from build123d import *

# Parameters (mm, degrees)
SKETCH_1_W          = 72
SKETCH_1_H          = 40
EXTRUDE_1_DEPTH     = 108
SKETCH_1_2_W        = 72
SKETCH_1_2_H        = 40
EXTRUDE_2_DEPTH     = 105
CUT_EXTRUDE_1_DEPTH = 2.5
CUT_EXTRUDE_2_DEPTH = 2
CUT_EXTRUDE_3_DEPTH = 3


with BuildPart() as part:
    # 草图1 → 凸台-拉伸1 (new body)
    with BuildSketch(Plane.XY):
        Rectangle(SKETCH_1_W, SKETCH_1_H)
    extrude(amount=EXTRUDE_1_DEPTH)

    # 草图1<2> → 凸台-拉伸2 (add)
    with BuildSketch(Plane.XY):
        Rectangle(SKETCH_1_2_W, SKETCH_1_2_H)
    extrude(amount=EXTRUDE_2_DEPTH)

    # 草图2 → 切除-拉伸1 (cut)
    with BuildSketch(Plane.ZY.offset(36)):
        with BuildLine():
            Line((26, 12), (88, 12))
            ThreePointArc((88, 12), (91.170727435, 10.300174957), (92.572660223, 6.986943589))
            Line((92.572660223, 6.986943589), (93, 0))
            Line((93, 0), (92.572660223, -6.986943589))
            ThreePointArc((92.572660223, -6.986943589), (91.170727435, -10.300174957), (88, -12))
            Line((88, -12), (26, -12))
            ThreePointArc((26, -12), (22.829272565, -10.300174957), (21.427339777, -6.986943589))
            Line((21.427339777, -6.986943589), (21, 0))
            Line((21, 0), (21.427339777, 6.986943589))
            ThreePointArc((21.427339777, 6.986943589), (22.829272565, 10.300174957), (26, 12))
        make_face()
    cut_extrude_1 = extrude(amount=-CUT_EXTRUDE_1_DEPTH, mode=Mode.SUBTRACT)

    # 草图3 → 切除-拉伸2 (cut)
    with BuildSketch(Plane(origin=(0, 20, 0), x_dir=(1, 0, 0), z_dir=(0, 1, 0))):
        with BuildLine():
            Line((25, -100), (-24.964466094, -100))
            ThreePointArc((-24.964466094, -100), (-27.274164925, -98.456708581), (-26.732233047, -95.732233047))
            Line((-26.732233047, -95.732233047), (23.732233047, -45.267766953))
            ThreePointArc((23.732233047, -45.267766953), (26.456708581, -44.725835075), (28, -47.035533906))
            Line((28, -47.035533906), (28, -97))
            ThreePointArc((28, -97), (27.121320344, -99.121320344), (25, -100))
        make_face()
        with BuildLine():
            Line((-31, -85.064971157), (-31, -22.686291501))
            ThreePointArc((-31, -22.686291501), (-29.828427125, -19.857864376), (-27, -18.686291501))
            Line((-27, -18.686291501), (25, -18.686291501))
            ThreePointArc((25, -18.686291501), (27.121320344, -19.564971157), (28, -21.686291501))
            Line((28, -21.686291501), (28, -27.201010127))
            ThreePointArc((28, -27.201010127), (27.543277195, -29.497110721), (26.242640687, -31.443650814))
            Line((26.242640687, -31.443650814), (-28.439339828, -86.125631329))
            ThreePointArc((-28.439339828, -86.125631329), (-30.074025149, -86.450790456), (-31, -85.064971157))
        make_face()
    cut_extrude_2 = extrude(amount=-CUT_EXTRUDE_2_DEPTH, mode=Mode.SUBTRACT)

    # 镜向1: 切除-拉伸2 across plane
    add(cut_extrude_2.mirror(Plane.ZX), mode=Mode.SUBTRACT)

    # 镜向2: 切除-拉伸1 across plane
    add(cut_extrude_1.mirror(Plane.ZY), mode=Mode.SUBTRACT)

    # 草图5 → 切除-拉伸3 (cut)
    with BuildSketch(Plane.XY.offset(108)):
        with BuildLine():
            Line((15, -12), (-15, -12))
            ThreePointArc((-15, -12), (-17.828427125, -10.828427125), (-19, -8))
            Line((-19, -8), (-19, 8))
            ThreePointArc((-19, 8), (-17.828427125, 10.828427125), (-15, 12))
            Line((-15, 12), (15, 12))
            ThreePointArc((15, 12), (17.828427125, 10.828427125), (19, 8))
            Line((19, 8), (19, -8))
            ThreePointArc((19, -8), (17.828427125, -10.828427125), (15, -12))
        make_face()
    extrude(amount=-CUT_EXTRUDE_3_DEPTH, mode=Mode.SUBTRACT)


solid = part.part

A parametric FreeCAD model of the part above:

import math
import FreeCAD as App
import Part
import Sketcher
Q = App.Units.Quantity


def add_polygon(sketch, points):
    """Adds a closed chain of lines whose ends are joined by coincident constraints."""
    first, n = sketch.GeometryCount, len(points)
    for a, b in zip(points, points[1:] + points[:1]):
        sketch.addGeometry(Part.LineSegment(App.Vector(*a, 0), App.Vector(*b, 0)), False)
    for i in range(n):
        sketch.addConstraint(Sketcher.Constraint("Coincident", first + i, 2, first + (i + 1) % n, 1))

doc = App.newDocument("Part")
params = doc.addObject("Spreadsheet::Sheet", "Params")
for row, (alias, value) in enumerate([
    ("sketch1_width", "72 mm"),
    ("sketch1_height", "40 mm"),
    ("pad1_length", "108 mm"),
    ("sketch2_width", "72 mm"),
    ("sketch2_height", "40 mm"),
    ("pad2_length", "105 mm"),
    ("sketch3_height", "62 mm"),
    ("sketch3_length", "7 mm"),
    ("pocket1_length", "2.5 mm"),
    ("sketch4_radius", "3 mm"),
    ("sketch4_radius2", "6 mm"),
    ("sketch4_radius3", "4 mm"),
    ("sketch4_radius4", "2.5 mm"),
    ("sketch4_radius5", "1.5 mm"),
    ("pocket2_length", "2 mm"),
    ("sketch5_radius", "4 mm"),
    ("sketch5_width", "30 mm"),
    ("sketch5_height", "16 mm"),
    ("pocket3_length", "3 mm"),
], start=1):
    params.set(f"A{row}", alias)
    params.set(f"B{row}", "=" + value)
    params.setAlias(f"B{row}", alias)

body = doc.addObject("PartDesign::Body", "Body")

# Sketch on XY plane
sketch1 = body.newObject("Sketcher::SketchObject", "Sketch")
sketch1.AttachmentSupport = (doc.getObject("XY_Plane"), [""])
sketch1.MapMode = "FlatFace"
add_polygon(sketch1, [(-36, 20), (-36, -20), (36, -20), (36, 20)])  # lines 0-3
sketch1.addConstraint(Sketcher.Constraint("Vertical", 0))
sketch1.addConstraint(Sketcher.Constraint("Horizontal", 1))
sketch1.addConstraint(Sketcher.Constraint("Vertical", 2))
sketch1.addConstraint(Sketcher.Constraint("Horizontal", 3))
sketch1.addConstraint(Sketcher.Constraint("Symmetric", 0, 2, 2, 2, -1, 1))
sketch1.addConstraint(Sketcher.Constraint("DistanceX", 1, 1, 1, 2, Q("72 mm")))
sketch1.addConstraint(Sketcher.Constraint("DistanceY", 0, 2, 0, 1, Q("40 mm")))
sketch1.setExpression("Constraints[9]", "Params.sketch1_width")
sketch1.setExpression("Constraints[10]", "Params.sketch1_height")
pad1 = body.newObject("PartDesign::Pad", "Pad")
pad1.Profile = sketch1
pad1.setExpression("Length", "Params.pad1_length")

# Sketch on XY plane
sketch2 = body.newObject("Sketcher::SketchObject", "Sketch001")
sketch2.AttachmentSupport = (doc.getObject("XY_Plane"), [""])
sketch2.MapMode = "FlatFace"
add_polygon(sketch2, [(-36, 20), (-36, -20), (36, -20), (36, 20)])  # lines 0-3
sketch2.addConstraint(Sketcher.Constraint("Vertical", 0))
sketch2.addConstraint(Sketcher.Constraint("Horizontal", 1))
sketch2.addConstraint(Sketcher.Constraint("Vertical", 2))
sketch2.addConstraint(Sketcher.Constraint("Horizontal", 3))
sketch2.addConstraint(Sketcher.Constraint("Symmetric", 0, 2, 2, 2, -1, 1))
sketch2.addConstraint(Sketcher.Constraint("DistanceX", 1, 1, 1, 2, Q("72 mm")))
sketch2.addConstraint(Sketcher.Constraint("DistanceY", 0, 2, 0, 1, Q("40 mm")))
sketch2.setExpression("Constraints[9]", "Params.sketch2_width")
sketch2.setExpression("Constraints[10]", "Params.sketch2_height")
pad2 = body.newObject("PartDesign::Pad", "Pad001")
pad2.Profile = sketch2
pad2.setExpression("Length", "Params.pad2_length")

# Sketch on YZ plane
sketch3 = body.newObject("Sketcher::SketchObject", "Sketch002")
sketch3.AttachmentSupport = (doc.getObject("YZ_Plane"), [""])
sketch3.MapMode = "FlatFace"
sketch3.AttachmentOffset = App.Placement(App.Vector(0, 0, -36), App.Rotation())
sketch3.addGeometry(Part.LineSegment(App.Vector(12, 88, 0), App.Vector(12, 26, 0)), False)
sketch3.addGeometry(Part.ArcOfCircle(Part.Circle(App.Vector(6.656905, 26.823429, 0), App.Vector(0, 0, 1), 5.406173), math.radians(-86.5), math.radians(-8.760976)), False)
sketch3.addGeometry(Part.LineSegment(App.Vector(6.986944, 21.42734, 0), App.Vector(0, 21, 0)), False)
sketch3.addGeometry(Part.LineSegment(App.Vector(0, 21, 0), App.Vector(-6.986944, 21.42734, 0)), False)
sketch3.addGeometry(Part.ArcOfCircle(Part.Circle(App.Vector(-6.656905, 26.823429, 0), App.Vector(0, 0, 1), 5.406173), math.radians(-171.239024), math.radians(-93.5)), False)
sketch3.addGeometry(Part.LineSegment(App.Vector(-12, 26, 0), App.Vector(-12, 88, 0)), False)
sketch3.addGeometry(Part.ArcOfCircle(Part.Circle(App.Vector(-6.656905, 87.176571, 0), App.Vector(0, 0, 1), 5.406173), math.radians(93.5), math.radians(171.239024)), False)
sketch3.addGeometry(Part.LineSegment(App.Vector(-6.986944, 92.57266, 0), App.Vector(0, 93, 0)), False)
sketch3.addGeometry(Part.LineSegment(App.Vector(0, 93, 0), App.Vector(6.986944, 92.57266, 0)), False)
sketch3.addGeometry(Part.ArcOfCircle(Part.Circle(App.Vector(6.656905, 87.176571, 0), App.Vector(0, 0, 1), 5.406173), math.radians(8.760976), math.radians(86.5)), False)
sketch3.addConstraint(Sketcher.Constraint("Coincident", 0, 2, 1, 2))
sketch3.addConstraint(Sketcher.Constraint("Tangent", 1, 1, 2, 1))
sketch3.addConstraint(Sketcher.Constraint("Coincident", 2, 2, 3, 1))
sketch3.addConstraint(Sketcher.Constraint("Tangent", 3, 2, 4, 2))
sketch3.addConstraint(Sketcher.Constraint("Coincident", 4, 1, 5, 1))
sketch3.addConstraint(Sketcher.Constraint("Coincident", 5, 2, 6, 2))
sketch3.addConstraint(Sketcher.Constraint("Tangent", 6, 1, 7, 1))
sketch3.addConstraint(Sketcher.Constraint("Coincident", 7, 2, 8, 1))
sketch3.addConstraint(Sketcher.Constraint("Tangent", 8, 2, 9, 2))
sketch3.addConstraint(Sketcher.Constraint("Coincident", 9, 1, 0, 1))
sketch3.addConstraint(Sketcher.Constraint("Vertical", 0))
sketch3.addConstraint(Sketcher.Constraint("Vertical", 5))
sketch3.addConstraint(Sketcher.Constraint("Equal", 1, 4))
sketch3.addConstraint(Sketcher.Constraint("Equal", 4, 6))
sketch3.addConstraint(Sketcher.Constraint("Equal", 6, 9))
sketch3.addConstraint(Sketcher.Constraint("Symmetric", 1, 3, 4, 3, -2))
sketch3.addConstraint(Sketcher.Constraint("Symmetric", 6, 3, 9, 3, -2))
sketch3.addConstraint(Sketcher.Constraint("PointOnObject", 2, 2, -2))
sketch3.addConstraint(Sketcher.Constraint("PointOnObject", 7, 2, -2))
sketch3.addConstraint(Sketcher.Constraint("Parallel", 2, 7))
sketch3.addConstraint(Sketcher.Constraint("Horizontal", 0, 2, 4, 1))
sketch3.addConstraint(Sketcher.Constraint("Vertical", 4, 3, 6, 3))
sketch3.addConstraint(Sketcher.Constraint("DistanceY", 0, 2, 0, 1, Q("62 mm")))
sketch3.addConstraint(Sketcher.Constraint("Distance", 2, Q("7 mm")))
sketch3.addConstraint(Sketcher.Constraint("DistanceX", -1, 1, 0, 2, Q("12 mm")))
sketch3.addConstraint(Sketcher.Constraint("DistanceY", -1, 1, 0, 2, Q("26 mm")))
sketch3.addConstraint(Sketcher.Constraint("DistanceY", -1, 1, 2, 2, Q("21 mm")))
sketch3.addConstraint(Sketcher.Constraint("Angle", 2, Q("-176.5 deg")))
sketch3.setExpression("Constraints[22]", "Params.sketch3_height")
sketch3.setExpression("Constraints[23]", "Params.sketch3_length")
pocket1 = body.newObject("PartDesign::Pocket", "Pocket")
pocket1.Profile = sketch3
pocket1.setExpression("Length", "Params.pocket1_length")
pocket1.Reversed = True

# Sketch on XZ plane
sketch4 = body.newObject("Sketcher::SketchObject", "Sketch003")
sketch4.AttachmentSupport = (doc.getObject("XZ_Plane"), [""])
sketch4.MapMode = "FlatFace"
sketch4.AttachmentOffset = App.Placement(App.Vector(0, 0, -20), App.Rotation())
sketch4.addGeometry(Part.LineSegment(App.Vector(-24.964466, 100, 0), App.Vector(25, 100, 0)), False)
sketch4.addGeometry(Part.ArcOfCircle(Part.Circle(App.Vector(25, 97, 0), App.Vector(0, 0, 1), 3), math.radians(0), math.radians(90)), False)
sketch4.addGeometry(Part.LineSegment(App.Vector(28, 97, 0), App.Vector(28, 47.035534, 0)), False)
sketch4.addGeometry(Part.ArcOfCircle(Part.Circle(App.Vector(25.5, 47.035534, 0), App.Vector(0, 0, 1), 2.5), math.radians(-135), math.radians(0)), False)
sketch4.addGeometry(Part.LineSegment(App.Vector(23.732233, 45.267767, 0), App.Vector(-26.732233, 95.732233, 0)), False)
sketch4.addGeometry(Part.ArcOfCircle(Part.Circle(App.Vector(-24.964466, 97.5, 0), App.Vector(0, 0, 1), 2.5), math.radians(90), math.radians(225)), False)
sketch4.addGeometry(Part.LineSegment(App.Vector(-31, 22.686292, 0), App.Vector(-31, 85.064971, 0)), False)
sketch4.addGeometry(Part.ArcOfCircle(Part.Circle(App.Vector(-29.5, 85.064971, 0), App.Vector(0, 0, 1), 1.5), math.radians(45), math.radians(180)), False)
sketch4.addGeometry(Part.LineSegment(App.Vector(-28.43934, 86.125631, 0), App.Vector(26.242641, 31.443651, 0)), False)
sketch4.addGeometry(Part.ArcOfCircle(Part.Circle(App.Vector(22, 27.20101, 0), App.Vector(0, 0, 1), 6), math.radians(0), math.radians(45)), False)
sketch4.addGeometry(Part.LineSegment(App.Vector(28, 27.20101, 0), App.Vector(28, 21.686292, 0)), False)
sketch4.addGeometry(Part.ArcOfCircle(Part.Circle(App.Vector(25, 21.686291, 0), App.Vector(0, 0, 1), 3), math.radians(-90), math.radians(0)), False)
sketch4.addGeometry(Part.LineSegment(App.Vector(25, 18.686292, 0), App.Vector(-27, 18.686292, 0)), False)
sketch4.addGeometry(Part.ArcOfCircle(Part.Circle(App.Vector(-27, 22.686291, 0), App.Vector(0, 0, 1), 4), math.radians(180), math.radians(270)), False)
sketch4.addConstraint(Sketcher.Constraint("Tangent", 0, 2, 1, 2))
sketch4.addConstraint(Sketcher.Constraint("Tangent", 1, 1, 2, 1))
sketch4.addConstraint(Sketcher.Constraint("Tangent", 2, 2, 3, 2))
sketch4.addConstraint(Sketcher.Constraint("Tangent", 3, 1, 4, 1))
sketch4.addConstraint(Sketcher.Constraint("Tangent", 4, 2, 5, 2))
sketch4.addConstraint(Sketcher.Constraint("Tangent", 5, 1, 0, 1))
sketch4.addConstraint(Sketcher.Constraint("Tangent", 6, 2, 7, 2))
sketch4.addConstraint(Sketcher.Constraint("Tangent", 7, 1, 8, 1))
sketch4.addConstraint(Sketcher.Constraint("Tangent", 8, 2, 9, 2))
sketch4.addConstraint(Sketcher.Constraint("Tangent", 9, 1, 10, 1))
sketch4.addConstraint(Sketcher.Constraint("Tangent", 10, 2, 11, 2))
sketch4.addConstraint(Sketcher.Constraint("Tangent", 11, 1, 12, 1))
sketch4.addConstraint(Sketcher.Constraint("Tangent", 12, 2, 13, 2))
sketch4.addConstraint(Sketcher.Constraint("Tangent", 13, 1, 6, 1))
sketch4.addConstraint(Sketcher.Constraint("Horizontal", 0))
sketch4.addConstraint(Sketcher.Constraint("Vertical", 2))
sketch4.addConstraint(Sketcher.Constraint("Vertical", 6))
sketch4.addConstraint(Sketcher.Constraint("Vertical", 10))
sketch4.addConstraint(Sketcher.Constraint("Horizontal", 12))
sketch4.addConstraint(Sketcher.Constraint("Equal", 3, 5))
sketch4.addConstraint(Sketcher.Constraint("Equal", 1, 11))
sketch4.addConstraint(Sketcher.Constraint("Parallel", 4, 8))
sketch4.addConstraint(Sketcher.Constraint("Vertical", 1, 3, 11, 3))
sketch4.addConstraint(Sketcher.Constraint("Equal", 0, 2))
sketch4.addConstraint(Sketcher.Constraint("Radius", 1, Q("3 mm")))
sketch4.addConstraint(Sketcher.Constraint("Radius", 9, Q("6 mm")))
sketch4.addConstraint(Sketcher.Constraint("Radius", 13, Q("4 mm")))
sketch4.addConstraint(Sketcher.Constraint("Radius", 3, Q("2.5 mm")))
sketch4.addConstraint(Sketcher.Constraint("Radius", 7, Q("1.5 mm")))
sketch4.addConstraint(Sketcher.Constraint("DistanceX", 12, 2, 12, 1, Q("52 mm")))
sketch4.addConstraint(Sketcher.Constraint("DistanceX", -1, 1, 1, 3, Q("25 mm")))
sketch4.addConstraint(Sketcher.Constraint("DistanceY", -1, 1, 1, 3, Q("97 mm")))
sketch4.addConstraint(Sketcher.Constraint("DistanceY", 6, 1, 6, 2, Q("62.37868 mm")))
sketch4.addConstraint(Sketcher.Constraint("DistanceY", 7, 1, 4, 2, Q("9.606602 mm")))
sketch4.addConstraint(Sketcher.Constraint("DistanceX", 0, 1, 0, 2, Q("49.964466 mm")))
sketch4.setExpression("Constraints[24]", "Params.sketch4_radius")
sketch4.setExpression("Constraints[25]", "Params.sketch4_radius2")
sketch4.setExpression("Constraints[26]", "Params.sketch4_radius3")
sketch4.setExpression("Constraints[27]", "Params.sketch4_radius4")
sketch4.setExpression("Constraints[28]", "Params.sketch4_radius5")
pocket2 = body.newObject("PartDesign::Pocket", "Pocket001")
pocket2.Profile = sketch4
pocket2.setExpression("Length", "Params.pocket2_length")
pocket2.Reversed = True
doc.recompute()

mirrored = body.newObject("PartDesign::Mirrored", "Mirrored")
mirrored.Originals = [pocket2]
mirrored.MirrorPlane = (doc.getObject("XZ_Plane"), [""])
body.Tip = mirrored
doc.recompute()

mirrored2 = body.newObject("PartDesign::Mirrored", "Mirrored001")
mirrored2.Originals = [pocket1]
mirrored2.MirrorPlane = (doc.getObject("YZ_Plane"), [""])
body.Tip = mirrored2

# Sketch on XY plane
sketch5 = body.newObject("Sketcher::SketchObject", "Sketch004")
sketch5.AttachmentSupport = (doc.getObject("XY_Plane"), [""])
sketch5.MapMode = "FlatFace"
sketch5.AttachmentOffset = App.Placement(App.Vector(0, 0, 108), App.Rotation())
sketch5.addGeometry(Part.LineSegment(App.Vector(-15, -12, 0), App.Vector(15, -12, 0)), False)
sketch5.addGeometry(Part.ArcOfCircle(Part.Circle(App.Vector(15, -8, 0), App.Vector(0, 0, 1), 4), math.radians(-90), math.radians(0)), False)
sketch5.addGeometry(Part.LineSegment(App.Vector(19, -8, 0), App.Vector(19, 8, 0)), False)
sketch5.addGeometry(Part.ArcOfCircle(Part.Circle(App.Vector(15, 8, 0), App.Vector(0, 0, 1), 4), math.radians(0), math.radians(90)), False)
sketch5.addGeometry(Part.LineSegment(App.Vector(15, 12, 0), App.Vector(-15, 12, 0)), False)
sketch5.addGeometry(Part.ArcOfCircle(Part.Circle(App.Vector(-15, 8, 0), App.Vector(0, 0, 1), 4), math.radians(90), math.radians(180)), False)
sketch5.addGeometry(Part.LineSegment(App.Vector(-19, 8, 0), App.Vector(-19, -8, 0)), False)
sketch5.addGeometry(Part.ArcOfCircle(Part.Circle(App.Vector(-15, -8, 0), App.Vector(0, 0, 1), 4), math.radians(180), math.radians(270)), False)
sketch5.addConstraint(Sketcher.Constraint("Tangent", 0, 2, 1, 1))
sketch5.addConstraint(Sketcher.Constraint("Tangent", 1, 2, 2, 1))
sketch5.addConstraint(Sketcher.Constraint("Tangent", 2, 2, 3, 1))
sketch5.addConstraint(Sketcher.Constraint("Tangent", 3, 2, 4, 1))
sketch5.addConstraint(Sketcher.Constraint("Tangent", 4, 2, 5, 1))
sketch5.addConstraint(Sketcher.Constraint("Tangent", 5, 2, 6, 1))
sketch5.addConstraint(Sketcher.Constraint("Tangent", 6, 2, 7, 1))
sketch5.addConstraint(Sketcher.Constraint("Tangent", 7, 2, 0, 1))
sketch5.addConstraint(Sketcher.Constraint("Horizontal", 0))
sketch5.addConstraint(Sketcher.Constraint("Vertical", 2))
sketch5.addConstraint(Sketcher.Constraint("Horizontal", 4))
sketch5.addConstraint(Sketcher.Constraint("Vertical", 6))
sketch5.addConstraint(Sketcher.Constraint("Equal", 1, 3))
sketch5.addConstraint(Sketcher.Constraint("Equal", 3, 5))
sketch5.addConstraint(Sketcher.Constraint("Equal", 5, 7))
sketch5.addConstraint(Sketcher.Constraint("Symmetric", 1, 3, 5, 3, -1, 1))
sketch5.addConstraint(Sketcher.Constraint("Radius", 1, Q("4 mm")))
sketch5.addConstraint(Sketcher.Constraint("DistanceX", 0, 1, 0, 2, Q("30 mm")))
sketch5.addConstraint(Sketcher.Constraint("DistanceY", 2, 1, 2, 2, Q("16 mm")))
sketch5.setExpression("Constraints[16]", "Params.sketch5_radius")
sketch5.setExpression("Constraints[17]", "Params.sketch5_width")
sketch5.setExpression("Constraints[18]", "Params.sketch5_height")
pocket3 = body.newObject("PartDesign::Pocket", "Pocket002")
pocket3.Profile = sketch5
pocket3.setExpression("Length", "Params.pocket3_length")

doc.recompute()
